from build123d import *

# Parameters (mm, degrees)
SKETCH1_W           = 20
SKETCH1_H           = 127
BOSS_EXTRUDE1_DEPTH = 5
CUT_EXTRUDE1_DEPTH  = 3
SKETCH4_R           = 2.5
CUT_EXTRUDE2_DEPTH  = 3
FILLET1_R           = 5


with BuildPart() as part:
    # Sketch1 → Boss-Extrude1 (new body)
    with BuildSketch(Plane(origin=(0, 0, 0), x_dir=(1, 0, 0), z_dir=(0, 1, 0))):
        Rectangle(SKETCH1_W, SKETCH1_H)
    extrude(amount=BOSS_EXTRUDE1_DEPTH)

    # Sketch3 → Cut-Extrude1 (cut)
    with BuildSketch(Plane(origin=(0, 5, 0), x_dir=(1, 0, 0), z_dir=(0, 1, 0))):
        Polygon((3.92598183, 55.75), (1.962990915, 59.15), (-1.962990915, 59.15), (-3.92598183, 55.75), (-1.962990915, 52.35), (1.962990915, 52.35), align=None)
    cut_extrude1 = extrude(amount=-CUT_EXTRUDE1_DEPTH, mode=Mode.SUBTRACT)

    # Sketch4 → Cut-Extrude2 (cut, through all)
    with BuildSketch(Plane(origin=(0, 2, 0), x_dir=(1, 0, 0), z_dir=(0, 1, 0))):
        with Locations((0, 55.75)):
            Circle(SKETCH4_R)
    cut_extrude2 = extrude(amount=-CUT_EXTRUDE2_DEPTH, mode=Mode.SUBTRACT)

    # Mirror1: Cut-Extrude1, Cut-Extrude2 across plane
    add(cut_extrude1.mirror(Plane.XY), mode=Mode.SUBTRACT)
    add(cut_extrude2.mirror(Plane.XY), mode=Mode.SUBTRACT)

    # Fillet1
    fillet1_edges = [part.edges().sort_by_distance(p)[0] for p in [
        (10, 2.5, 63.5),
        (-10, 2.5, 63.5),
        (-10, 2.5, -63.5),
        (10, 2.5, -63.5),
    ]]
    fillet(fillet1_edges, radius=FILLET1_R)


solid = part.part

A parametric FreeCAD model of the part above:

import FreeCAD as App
import Part
import Sketcher
Q = App.Units.Quantity


def edges_at(feature, points):
    """Names of the edges that pass closest to the given points."""
    edges = feature.Shape.Edges
    near = lambda p: min(range(len(edges)), key=lambda i: edges[i].distToShape(Part.Vertex(*p))[0])
    return sorted({f"Edge{near(p) + 1}" for p in points})


def add_polygon(sketch, points):
    """Adds a closed chain of lines whose ends are joined by coincident constraints."""
    first, n = sketch.GeometryCount, len(points)
    for a, b in zip(points, points[1:] + points[:1]):
        sketch.addGeometry(Part.LineSegment(App.Vector(*a, 0), App.Vector(*b, 0)), False)
    for i in range(n):
        sketch.addConstraint(Sketcher.Constraint("Coincident", first + i, 2, first + (i + 1) % n, 1))

doc = App.newDocument("Part")
body = doc.addObject("PartDesign::Body", "Body")

# Sketch on XZ plane
sketch1 = body.newObject("Sketcher::SketchObject", "Sketch")
sketch1.AttachmentSupport = (doc.getObject("XZ_Plane"), [""])
sketch1.MapMode = "FlatFace"
add_polygon(sketch1, [(-10, -64), (-10, 64), (10, 64), (10, -64)])  # lines 0-3
sketch1.addConstraint([
    Sketcher.Constraint("Vertical", 0),
    Sketcher.Constraint("Horizontal", 1),
    Sketcher.Constraint("Vertical", 2),
    Sketcher.Constraint("Horizontal", 3),
    Sketcher.Constraint("Symmetric", 0, 2, 2, 2, -1, 1),
    Sketcher.Constraint("DistanceX", 1, 1, 1, 2, Q("20 mm")),
    Sketcher.Constraint("DistanceY", 0, 1, 0, 2, Q("127 mm")),
])
pad1 = body.newObject("PartDesign::Pad", "Pad")
pad1.Profile = sketch1
pad1.Length = 5
pad1.Reversed = True

# Sketch on XZ plane
sketch2 = body.newObject("Sketcher::SketchObject", "Sketch001")
sketch2.AttachmentSupport = (doc.getObject("XZ_Plane"), [""])
sketch2.MapMode = "FlatFace"
sketch2.AttachmentOffset = App.Placement(App.Vector(0, 0, -5), App.Rotation())
add_polygon(sketch2, [(3.9, -55.8), (2, -59.1), (-2, -59.1), (-3.9, -55.8), (-2, -52.4), (2, -52.4)])  # lines 0-5
sketch2.addConstraint([
    Sketcher.Constraint("Horizontal", 1),
    Sketcher.Constraint("Horizontal", 4),
    Sketcher.Constraint("Symmetric", 2, 2, 5, 2, -2),
    Sketcher.Constraint("Parallel", 0, 3),
    Sketcher.Constraint("Parallel", 2, 5),
    Sketcher.Constraint("Vertical", 1, 2, 3, 2),
    Sketcher.Constraint("Vertical", 0, 2, 4, 2),
    Sketcher.Constraint("Angle", 0, Q("-120 deg")),
    Sketcher.Constraint("DistanceY", 1, 2, 2, 2, Q("3.4 mm")),
    Sketcher.Constraint("DistanceY", 0, 2, -1, 1, Q("59.15 mm")),
    Sketcher.Constraint("DistanceX", 1, 2, 1, 1, Q("3.925982 mm")),
])
pocket1 = body.newObject("PartDesign::Pocket", "Pocket")
pocket1.Profile = sketch2
pocket1.Length = 3
pocket1.Reversed = True

# Sketch on XZ plane
sketch3 = body.newObject("Sketcher::SketchObject", "Sketch002")
sketch3.AttachmentSupport = (doc.getObject("XZ_Plane"), [""])
sketch3.MapMode = "FlatFace"
sketch3.AttachmentOffset = App.Placement(App.Vector(0, 0, -2), App.Rotation())
sketch3.addGeometry(Part.Circle(App.Vector(0, -55.8, 0), App.Vector(0, 0, 1), 2.5), False)
sketch3.addConstraint([
    Sketcher.Constraint("PointOnObject", 0, 3, -2),
    Sketcher.Constraint("Diameter", 0, Q("5 mm")),
    Sketcher.Constraint("DistanceY", 0, 3, -1, 1, Q("55.75 mm")),
])
pocket2 = body.newObject("PartDesign::Pocket", "Pocket001")
pocket2.Profile = sketch3
pocket2.Type = "ThroughAll"
pocket2.Reversed = True
doc.recompute()

mirrored = body.newObject("PartDesign::Mirrored", "Mirrored")
mirrored.Originals = [pocket1, pocket2]
mirrored.MirrorPlane = (doc.getObject("XY_Plane"), [""])
body.Tip = mirrored
doc.recompute()

fillet = body.newObject("PartDesign::Fillet", "Fillet")
fillet.Base = (mirrored, edges_at(mirrored, [
    (10, 2.5, 63.5),
    (-10, 2.5, 63.5),
    (-10, 2.5, -63.5),
    (10, 2.5, -63.5),
]))
fillet.Radius = 5

doc.recompute()
